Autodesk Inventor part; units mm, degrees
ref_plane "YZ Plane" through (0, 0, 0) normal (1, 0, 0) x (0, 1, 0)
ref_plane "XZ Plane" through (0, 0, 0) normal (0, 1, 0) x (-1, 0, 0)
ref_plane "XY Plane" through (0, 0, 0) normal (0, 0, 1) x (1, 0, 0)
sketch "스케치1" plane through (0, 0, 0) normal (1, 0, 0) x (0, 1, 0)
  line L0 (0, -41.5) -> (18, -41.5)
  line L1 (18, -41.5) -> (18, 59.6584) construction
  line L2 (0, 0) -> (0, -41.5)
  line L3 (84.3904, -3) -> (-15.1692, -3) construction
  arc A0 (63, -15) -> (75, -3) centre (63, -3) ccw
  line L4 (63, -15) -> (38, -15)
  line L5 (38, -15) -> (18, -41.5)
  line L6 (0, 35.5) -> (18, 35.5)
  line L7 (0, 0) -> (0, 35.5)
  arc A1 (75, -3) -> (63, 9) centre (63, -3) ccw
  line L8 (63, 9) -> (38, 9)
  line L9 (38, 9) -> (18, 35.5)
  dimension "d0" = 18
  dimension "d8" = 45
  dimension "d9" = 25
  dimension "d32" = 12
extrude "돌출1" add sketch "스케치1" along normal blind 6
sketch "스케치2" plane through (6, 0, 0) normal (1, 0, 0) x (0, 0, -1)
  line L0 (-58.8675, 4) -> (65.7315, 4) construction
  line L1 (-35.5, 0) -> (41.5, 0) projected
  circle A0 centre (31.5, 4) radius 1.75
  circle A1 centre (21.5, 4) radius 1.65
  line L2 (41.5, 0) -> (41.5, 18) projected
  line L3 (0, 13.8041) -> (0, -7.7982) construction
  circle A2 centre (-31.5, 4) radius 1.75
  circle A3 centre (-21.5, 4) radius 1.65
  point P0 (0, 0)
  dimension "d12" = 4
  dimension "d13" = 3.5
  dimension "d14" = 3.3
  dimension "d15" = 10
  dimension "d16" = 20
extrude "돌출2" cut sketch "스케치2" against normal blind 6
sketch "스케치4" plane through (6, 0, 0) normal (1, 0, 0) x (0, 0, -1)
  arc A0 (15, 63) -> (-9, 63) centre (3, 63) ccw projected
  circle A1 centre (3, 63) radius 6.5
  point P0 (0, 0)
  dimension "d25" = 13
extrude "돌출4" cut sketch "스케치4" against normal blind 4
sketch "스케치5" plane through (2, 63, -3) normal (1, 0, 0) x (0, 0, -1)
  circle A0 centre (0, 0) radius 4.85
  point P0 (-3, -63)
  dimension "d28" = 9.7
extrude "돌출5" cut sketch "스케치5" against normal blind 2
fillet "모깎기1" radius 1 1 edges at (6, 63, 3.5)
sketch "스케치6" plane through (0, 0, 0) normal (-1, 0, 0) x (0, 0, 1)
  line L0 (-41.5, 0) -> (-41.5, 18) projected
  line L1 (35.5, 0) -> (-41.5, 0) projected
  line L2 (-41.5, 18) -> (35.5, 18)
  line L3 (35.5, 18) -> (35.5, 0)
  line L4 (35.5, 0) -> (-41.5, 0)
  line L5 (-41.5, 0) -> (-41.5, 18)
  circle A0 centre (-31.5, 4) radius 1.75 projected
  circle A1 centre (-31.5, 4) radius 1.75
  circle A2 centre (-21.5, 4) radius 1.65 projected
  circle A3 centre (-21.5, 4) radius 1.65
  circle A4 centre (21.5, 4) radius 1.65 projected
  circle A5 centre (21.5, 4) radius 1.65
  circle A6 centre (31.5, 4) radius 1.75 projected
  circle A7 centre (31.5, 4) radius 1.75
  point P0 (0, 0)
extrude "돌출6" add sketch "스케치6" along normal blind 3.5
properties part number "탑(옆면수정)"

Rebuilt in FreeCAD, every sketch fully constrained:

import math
import FreeCAD as App
import Part
import Sketcher

V = App.Vector


def edges_at(feature, points):
    """Names of the edges that pass closest to the given points."""
    edges = feature.Shape.Edges
    near = lambda p: min(range(len(edges)), key=lambda i: edges[i].distToShape(Part.Vertex(*p))[0])
    return sorted({f"Edge{near(p) + 1}" for p in points})

doc = App.newDocument("Part")
body = doc.addObject("PartDesign::Body", "Body")

# Sketch on YZ plane
sketch1 = doc.addObject("Sketcher::SketchObject", "Sketch")
body.addObject(sketch1)
sketch1.AttachmentSupport = (doc.YZ_Plane, [""])
sketch1.MapMode = "FlatFace"
sketch1.addGeometry([
    Part.LineSegment(V(0, 35.5, 0), V(0, -41.5, 0)),  # 0
    Part.LineSegment(V(0, -41.5, 0), V(18, -41.5, 0)),  # 1
    Part.LineSegment(V(18, -41.5, 0), V(38, -15, 0)),  # 2
    Part.LineSegment(V(38, -15, 0), V(63, -15, 0)),  # 3
    Part.ArcOfCircle(Part.Circle(V(63, -3, 0), V(0, 0, 1), 12), math.radians(-90), math.radians(90)),  # 4
    Part.LineSegment(V(63, 9, 0), V(38, 9, 0)),  # 5
    Part.LineSegment(V(38, 9, 0), V(18, 35.5, 0)),  # 6
    Part.LineSegment(V(18, 35.5, 0), V(0, 35.5, 0)),  # 7
], False)
sketch1.addConstraint([
    Sketcher.Constraint("Coincident", 0, 2, 1, 1),
    Sketcher.Constraint("Coincident", 1, 2, 2, 1),
    Sketcher.Constraint("Coincident", 2, 2, 3, 1),
    Sketcher.Constraint("Tangent", 3, 2, 4, 1),
    Sketcher.Constraint("Tangent", 4, 2, 5, 1),
    Sketcher.Constraint("Coincident", 5, 2, 6, 1),
    Sketcher.Constraint("Coincident", 6, 2, 7, 1),
    Sketcher.Constraint("Coincident", 7, 2, 0, 1),
    Sketcher.Constraint("Vertical", 0),
    Sketcher.Constraint("Horizontal", 1),
    Sketcher.Constraint("Horizontal", 3),
    Sketcher.Constraint("Horizontal", 5),
    Sketcher.Constraint("Horizontal", 7),
    Sketcher.Constraint("PointOnObject", 0, 2, -2),
    Sketcher.Constraint("Vertical", 2, 2, 5, 2),
    Sketcher.Constraint("Vertical", 1, 2, 6, 2),
    Sketcher.Constraint("Equal", 2, 6),
    Sketcher.Constraint("Radius", 4, 12.0),
    Sketcher.Constraint("DistanceX", 1, 1, 1, 2, 18.0),
    Sketcher.Constraint("DistanceX", 3, 1, 3, 2, 25.0),
    Sketcher.Constraint("DistanceX", 1, 2, 4, 3, 45.0),
    Sketcher.Constraint("DistanceY", 0, 2, 0, 1, 77.0),
    Sketcher.Constraint("DistanceY", 4, 3, -1, 1, 3.0),
])
pad1 = doc.addObject("PartDesign::Pad", "Pad")
body.addObject(pad1)
pad1.Profile = sketch1
pad1.Length = 6

# Sketch on YZ plane
sketch2 = doc.addObject("Sketcher::SketchObject", "Sketch001")
body.addObject(sketch2)
sketch2.AttachmentSupport = (doc.YZ_Plane, [""])
sketch2.MapMode = "FlatFace"
sketch2.AttachmentOffset = App.Placement(V(0, 0, 6), App.Rotation())
sketch2.addGeometry([
    Part.Circle(V(4, -31.5, 0), V(0, 0, 1), 1.75),
    Part.Circle(V(4, -21.5, 0), V(0, 0, 1), 1.65),
    Part.Circle(V(4, 31.5, 0), V(0, 0, 1), 1.75),
    Part.Circle(V(4, 21.5, 0), V(0, 0, 1), 1.65),
], False)
sketch2.addConstraint([
    Sketcher.Constraint("Equal", 0, 2),
    Sketcher.Constraint("Equal", 1, 3),
    Sketcher.Constraint("Symmetric", 0, 3, 2, 3, -1),
    Sketcher.Constraint("Symmetric", 1, 3, 3, 3, -1),
    Sketcher.Constraint("Vertical", 0, 3, 1, 3),
    Sketcher.Constraint("Diameter", 0, 3.5),
    Sketcher.Constraint("Diameter", 1, 3.3),
    Sketcher.Constraint("DistanceX", -1, 1, 0, 3, 4.0),
    Sketcher.Constraint("DistanceY", 0, 3, 1, 3, 10.0),
    Sketcher.Constraint("DistanceY", 1, 3, 2, 3, 53.0),
])
pocket1 = doc.addObject("PartDesign::Pocket", "Pocket")
body.addObject(pocket1)
pocket1.Profile = sketch2
pocket1.Length = 6

# Sketch on YZ plane
sketch3 = doc.addObject("Sketcher::SketchObject", "Sketch002")
body.addObject(sketch3)
sketch3.AttachmentSupport = (doc.YZ_Plane, [""])
sketch3.MapMode = "FlatFace"
sketch3.AttachmentOffset = App.Placement(V(0, 0, 6), App.Rotation())
sketch3.addGeometry(Part.Circle(V(63, -3, 0), V(0, 0, 1), 6.5), False)
sketch3.addConstraint([
    Sketcher.Constraint("Diameter", 0, 13.0),
    Sketcher.Constraint("DistanceX", -1, 1, 0, 3, 63.0),
    Sketcher.Constraint("DistanceY", 0, 3, -1, 1, 3.0),
])
pocket2 = doc.addObject("PartDesign::Pocket", "Pocket001")
body.addObject(pocket2)
pocket2.Profile = sketch3
pocket2.Length = 4

# Sketch on YZ plane
sketch4 = doc.addObject("Sketcher::SketchObject", "Sketch003")
body.addObject(sketch4)
sketch4.AttachmentSupport = (doc.YZ_Plane, [""])
sketch4.MapMode = "FlatFace"
sketch4.AttachmentOffset = App.Placement(V(0, 0, 2), App.Rotation())
sketch4.addGeometry(Part.Circle(V(63, -3, 0), V(0, 0, 1), 4.85), False)
sketch4.addConstraint([
    Sketcher.Constraint("Diameter", 0, 9.7),
    Sketcher.Constraint("DistanceX", -1, 1, 0, 3, 63.0),
    Sketcher.Constraint("DistanceY", 0, 3, -1, 1, 3.0),
])
pocket3 = doc.addObject("PartDesign::Pocket", "Pocket002")
body.addObject(pocket3)
pocket3.Profile = sketch4
pocket3.Length = 2
doc.recompute()

fillet = doc.addObject("PartDesign::Fillet", "Fillet")
body.addObject(fillet)
fillet.Base = (pocket3, edges_at(pocket3, [(6, 63, 3.5)]))
fillet.Radius = 1

# Sketch on YZ plane
sketch5 = doc.addObject("Sketcher::SketchObject", "Sketch004")
body.addObject(sketch5)
sketch5.AttachmentSupport = (doc.YZ_Plane, [""])
sketch5.MapMode = "FlatFace"
sketch5.addGeometry([
    Part.LineSegment(V(18, -41.5, 0), V(0, -41.5, 0)),  # 0
    Part.LineSegment(V(0, -41.5, 0), V(0, 35.5, 0)),  # 1
    Part.LineSegment(V(0, 35.5, 0), V(18, 35.5, 0)),  # 2
    Part.LineSegment(V(18, 35.5, 0), V(18, -41.5, 0)),  # 3
    Part.Circle(V(4, -31.5, 0), V(0, 0, 1), 1.75),  # 4
    Part.Circle(V(4, -21.5, 0), V(0, 0, 1), 1.65),  # 5
    Part.Circle(V(4, 21.5, 0), V(0, 0, 1), 1.65),  # 6
    Part.Circle(V(4, 31.5, 0), V(0, 0, 1), 1.75),  # 7
], False)
sketch5.addConstraint([
    Sketcher.Constraint("Coincident", 0, 2, 1, 1),
    Sketcher.Constraint("Coincident", 1, 2, 2, 1),
    Sketcher.Constraint("Coincident", 2, 2, 3, 1),
    Sketcher.Constraint("Coincident", 3, 2, 0, 1),
    Sketcher.Constraint("Horizontal", 0),
    Sketcher.Constraint("Vertical", 1),
    Sketcher.Constraint("Horizontal", 2),
    Sketcher.Constraint("Vertical", 3),
    Sketcher.Constraint("Equal", 5, 6),
    Sketcher.Constraint("Equal", 4, 7),
    Sketcher.Constraint("Symmetric", 5, 3, 6, 3, -1),
    Sketcher.Constraint("Symmetric", 4, 3, 7, 3, -1),
    Sketcher.Constraint("PointOnObject", 0, 2, -2),
    Sketcher.Constraint("Vertical", 4, 3, 5, 3),
    Sketcher.Constraint("Diameter", 4, 3.5),
    Sketcher.Constraint("Diameter", 5, 3.3),
    Sketcher.Constraint("DistanceX", 0, 2, 0, 1, 18.0),
    Sketcher.Constraint("DistanceY", 1, 1, 1, 2, 77.0),
    Sketcher.Constraint("DistanceX", -1, 1, 4, 3, 4.0),
    Sketcher.Constraint("DistanceY", 4, 3, 5, 3, 10.0),
    Sketcher.Constraint("DistanceY", 5, 3, 6, 3, 43.0),
    Sketcher.Constraint("DistanceY", 0, 2, 4, 3, 10.0),
])
pad2 = doc.addObject("PartDesign::Pad", "Pad001")
body.addObject(pad2)
pad2.Profile = sketch5
pad2.Length = 3.5
pad2.Reversed = True

doc.recompute()
